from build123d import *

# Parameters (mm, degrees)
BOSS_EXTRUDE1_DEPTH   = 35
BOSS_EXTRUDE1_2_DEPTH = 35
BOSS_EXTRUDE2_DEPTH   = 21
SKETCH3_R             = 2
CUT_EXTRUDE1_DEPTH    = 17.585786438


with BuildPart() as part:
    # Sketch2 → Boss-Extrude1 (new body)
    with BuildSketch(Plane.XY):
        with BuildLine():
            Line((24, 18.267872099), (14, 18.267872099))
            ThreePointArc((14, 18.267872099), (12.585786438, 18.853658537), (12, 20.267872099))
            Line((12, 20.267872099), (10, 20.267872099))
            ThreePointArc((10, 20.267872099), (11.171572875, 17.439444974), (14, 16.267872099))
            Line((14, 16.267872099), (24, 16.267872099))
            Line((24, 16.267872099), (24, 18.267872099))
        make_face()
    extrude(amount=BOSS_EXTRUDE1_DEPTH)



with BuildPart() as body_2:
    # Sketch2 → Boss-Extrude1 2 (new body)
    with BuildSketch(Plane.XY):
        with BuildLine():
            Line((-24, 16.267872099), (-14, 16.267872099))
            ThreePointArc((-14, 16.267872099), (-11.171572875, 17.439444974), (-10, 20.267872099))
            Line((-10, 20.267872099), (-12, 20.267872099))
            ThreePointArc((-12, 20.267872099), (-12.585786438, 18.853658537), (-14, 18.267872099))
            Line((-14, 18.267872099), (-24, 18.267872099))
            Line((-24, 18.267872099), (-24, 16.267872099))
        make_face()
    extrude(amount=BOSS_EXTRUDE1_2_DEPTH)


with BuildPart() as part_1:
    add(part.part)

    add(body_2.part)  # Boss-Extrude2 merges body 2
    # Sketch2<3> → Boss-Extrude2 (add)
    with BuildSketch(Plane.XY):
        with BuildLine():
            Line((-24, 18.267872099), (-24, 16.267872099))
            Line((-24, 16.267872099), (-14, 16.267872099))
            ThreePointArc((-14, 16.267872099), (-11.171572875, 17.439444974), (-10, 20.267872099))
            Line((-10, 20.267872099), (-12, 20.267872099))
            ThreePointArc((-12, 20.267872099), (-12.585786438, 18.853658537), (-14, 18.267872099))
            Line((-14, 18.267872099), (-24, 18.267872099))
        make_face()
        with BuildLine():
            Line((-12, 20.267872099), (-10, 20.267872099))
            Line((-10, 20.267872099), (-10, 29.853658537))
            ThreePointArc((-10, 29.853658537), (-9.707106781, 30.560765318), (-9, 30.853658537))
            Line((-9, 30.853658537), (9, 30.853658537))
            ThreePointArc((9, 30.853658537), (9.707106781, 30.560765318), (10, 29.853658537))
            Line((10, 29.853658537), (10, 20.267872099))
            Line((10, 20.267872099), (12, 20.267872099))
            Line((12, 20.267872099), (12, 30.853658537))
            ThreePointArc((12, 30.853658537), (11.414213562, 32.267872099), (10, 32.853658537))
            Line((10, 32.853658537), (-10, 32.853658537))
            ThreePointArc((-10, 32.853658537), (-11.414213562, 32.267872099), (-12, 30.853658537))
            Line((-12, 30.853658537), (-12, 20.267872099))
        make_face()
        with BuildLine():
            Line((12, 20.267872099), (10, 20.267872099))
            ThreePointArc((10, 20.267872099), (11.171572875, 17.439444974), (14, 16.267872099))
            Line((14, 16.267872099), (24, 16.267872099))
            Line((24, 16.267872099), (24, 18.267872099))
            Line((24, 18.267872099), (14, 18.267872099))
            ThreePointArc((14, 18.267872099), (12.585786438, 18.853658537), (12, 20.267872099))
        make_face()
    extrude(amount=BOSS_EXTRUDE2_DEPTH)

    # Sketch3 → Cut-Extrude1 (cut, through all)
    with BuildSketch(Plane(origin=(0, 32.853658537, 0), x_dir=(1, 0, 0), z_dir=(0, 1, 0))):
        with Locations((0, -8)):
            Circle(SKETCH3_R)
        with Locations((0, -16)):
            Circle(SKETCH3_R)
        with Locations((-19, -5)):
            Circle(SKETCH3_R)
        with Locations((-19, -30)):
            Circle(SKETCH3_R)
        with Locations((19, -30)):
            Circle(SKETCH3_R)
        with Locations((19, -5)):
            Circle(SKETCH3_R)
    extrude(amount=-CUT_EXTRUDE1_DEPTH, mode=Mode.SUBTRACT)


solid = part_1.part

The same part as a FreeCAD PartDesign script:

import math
import FreeCAD as App
import Part
import Sketcher
Q = App.Units.Quantity

doc = App.newDocument("Part")
params = doc.addObject("Spreadsheet::Sheet", "Params")
for row, (alias, value) in enumerate([
    ("sketch1_radius", "2 mm"),
    ("sketch1_radius2", "4 mm"),
    ("sketch1_width", "10 mm"),
    ("pad1_length", "35 mm"),
    ("sketch2_radius", "4 mm"),
    ("sketch2_radius2", "2 mm"),
    ("sketch2_width", "10 mm"),
    ("pad2_length", "35 mm"),
    ("sketch3_radius", "4 mm"),
    ("sketch3_radius2", "1 mm"),
    ("sketch3_width", "10 mm"),
    ("sketch3_width2", "18 mm"),
    ("pad3_length", "21 mm"),
    ("sketch4_diameter", "4 mm"),
], start=1):
    params.set(f"A{row}", alias)
    params.set(f"B{row}", "=" + value)
    params.setAlias(f"B{row}", alias)

body = doc.addObject("PartDesign::Body", "Body")

sketch1 = body.newObject("Sketcher::SketchObject", "Sketch")
sketch1.AttachmentSupport = (doc.getObject("XY_Plane"), [""])
sketch1.MapMode = "FlatFace"
sketch1.addGeometry([
    Part.LineSegment(App.Vector(24, 18.3, 0), App.Vector(14, 18.3, 0)),
    Part.ArcOfCircle(Part.Circle(App.Vector(14, 20.3, 0), App.Vector(0, 0, 1), 2), math.radians(-180), math.radians(-90)),
    Part.LineSegment(App.Vector(12, 20.3, 0), App.Vector(10, 20.3, 0)),
    Part.ArcOfCircle(Part.Circle(App.Vector(14, 20.3, 0), App.Vector(0, 0, 1), 4), math.radians(180), math.radians(270)),
    Part.LineSegment(App.Vector(14, 16.3, 0), App.Vector(24, 16.3, 0)),
    Part.LineSegment(App.Vector(24, 16.3, 0), App.Vector(24, 18.3, 0)),
], False)
sketch1.addConstraint([
    Sketcher.Constraint("Tangent", 0, 2, 1, 2),
    Sketcher.Constraint("Coincident", 1, 1, 2, 1),
    Sketcher.Constraint("Coincident", 2, 2, 3, 1),
    Sketcher.Constraint("Tangent", 3, 2, 4, 1),
    Sketcher.Constraint("Coincident", 4, 2, 5, 1),
    Sketcher.Constraint("Coincident", 5, 2, 0, 1),
    Sketcher.Constraint("Horizontal", 0),
    Sketcher.Constraint("Horizontal", 2),
    Sketcher.Constraint("Horizontal", 4),
    Sketcher.Constraint("Vertical", 5),
    Sketcher.Constraint("Coincident", 3, 3, 1, 3),
    Sketcher.Constraint("Horizontal", 3, 3, 1, 1),
    Sketcher.Constraint("Radius", 1, Q("2 mm")),
    Sketcher.Constraint("Radius", 3, Q("4 mm")),
    Sketcher.Constraint("DistanceX", 0, 2, 0, 1, Q("10 mm")),
    Sketcher.Constraint("DistanceX", -1, 1, 1, 3, Q("14 mm")),
    Sketcher.Constraint("DistanceY", -1, 1, 1, 3, Q("20.267872 mm")),
])
sketch1.setExpression("Constraints[12]", "Params.sketch1_radius")
sketch1.setExpression("Constraints[13]", "Params.sketch1_radius2")
sketch1.setExpression("Constraints[14]", "Params.sketch1_width")
pad1 = body.newObject("PartDesign::Pad", "Pad")
pad1.Profile = sketch1
pad1.setExpression("Length", "Params.pad1_length")
body2 = doc.addObject("PartDesign::Body", "Body001")

sketch2 = body2.newObject("Sketcher::SketchObject", "Sketch001")
sketch2.AttachmentSupport = (doc.getObject("XY_Plane001"), [""])
sketch2.MapMode = "FlatFace"
sketch2.addGeometry([
    Part.LineSegment(App.Vector(-24, 16.3, 0), App.Vector(-14, 16.3, 0)),
    Part.ArcOfCircle(Part.Circle(App.Vector(-14, 20.3, 0), App.Vector(0, 0, 1), 4), math.radians(-90), math.radians(0)),
    Part.LineSegment(App.Vector(-10, 20.3, 0), App.Vector(-12, 20.3, 0)),
    Part.ArcOfCircle(Part.Circle(App.Vector(-14, 20.3, 0), App.Vector(0, 0, 1), 2), math.radians(-90), math.radians(0)),
    Part.LineSegment(App.Vector(-14, 18.3, 0), App.Vector(-24, 18.3, 0)),
    Part.LineSegment(App.Vector(-24, 18.3, 0), App.Vector(-24, 16.3, 0)),
], False)
sketch2.addConstraint([
    Sketcher.Constraint("Tangent", 0, 2, 1, 1),
    Sketcher.Constraint("Coincident", 1, 2, 2, 1),
    Sketcher.Constraint("Coincident", 2, 2, 3, 2),
    Sketcher.Constraint("Tangent", 3, 1, 4, 1),
    Sketcher.Constraint("Coincident", 4, 2, 5, 1),
    Sketcher.Constraint("Coincident", 5, 2, 0, 1),
    Sketcher.Constraint("Horizontal", 0),
    Sketcher.Constraint("Horizontal", 2),
    Sketcher.Constraint("Horizontal", 4),
    Sketcher.Constraint("Vertical", 5),
    Sketcher.Constraint("Coincident", 3, 3, 1, 3),
    Sketcher.Constraint("Horizontal", 3, 3, 1, 2),
    Sketcher.Constraint("Radius", 1, Q("4 mm")),
    Sketcher.Constraint("Radius", 3, Q("2 mm")),
    Sketcher.Constraint("DistanceX", 0, 1, 0, 2, Q("10 mm")),
    Sketcher.Constraint("DistanceX", 1, 3, -1, 1, Q("14 mm")),
    Sketcher.Constraint("DistanceY", -1, 1, 1, 3, Q("20.267872 mm")),
])
sketch2.setExpression("Constraints[12]", "Params.sketch2_radius")
sketch2.setExpression("Constraints[13]", "Params.sketch2_radius2")
sketch2.setExpression("Constraints[14]", "Params.sketch2_width")
pad2 = body2.newObject("PartDesign::Pad", "Pad001")
pad2.Profile = sketch2
pad2.setExpression("Length", "Params.pad2_length")
body.AllowCompound = True
doc.recompute()

boolean = body.newObject("PartDesign::Boolean", "Boolean")
boolean.Type = "Fuse"
boolean.addObjects([body2])

sketch3 = body.newObject("Sketcher::SketchObject", "Sketch002")
sketch3.AttachmentSupport = (doc.getObject("XY_Plane"), [""])
sketch3.MapMode = "FlatFace"
sketch3.addGeometry([
    Part.LineSegment(App.Vector(-24, 18.3, 0), App.Vector(-24, 16.3, 0)),
    Part.LineSegment(App.Vector(-24, 16.3, 0), App.Vector(-14, 16.3, 0)),
    Part.ArcOfCircle(Part.Circle(App.Vector(-14, 20.3, 0), App.Vector(0, 0, 1), 4), math.radians(-90), math.radians(0)),
    Part.LineSegment(App.Vector(-10, 20.3, 0), App.Vector(-10, 29.9, 0)),
    Part.ArcOfCircle(Part.Circle(App.Vector(-9, 29.9, 0), App.Vector(0, 0, 1), 1), math.radians(90), math.radians(180)),
    Part.LineSegment(App.Vector(-9, 30.9, 0), App.Vector(9, 30.9, 0)),
    Part.ArcOfCircle(Part.Circle(App.Vector(9, 29.9, 0), App.Vector(0, 0, 1), 1), math.radians(0), math.radians(90)),
    Part.LineSegment(App.Vector(10, 29.9, 0), App.Vector(10, 20.3, 0)),
    Part.ArcOfCircle(Part.Circle(App.Vector(14, 20.3, 0), App.Vector(0, 0, 1), 4), math.radians(180), math.radians(270)),
    Part.LineSegment(App.Vector(14, 16.3, 0), App.Vector(24, 16.3, 0)),
    Part.LineSegment(App.Vector(24, 16.3, 0), App.Vector(24, 18.3, 0)),
    Part.LineSegment(App.Vector(24, 18.3, 0), App.Vector(14, 18.3, 0)),
    Part.ArcOfCircle(Part.Circle(App.Vector(14, 20.3, 0), App.Vector(0, 0, 1), 2), math.radians(-180), math.radians(-90)),
    Part.LineSegment(App.Vector(12, 20.3, 0), App.Vector(12, 30.9, 0)),
    Part.ArcOfCircle(Part.Circle(App.Vector(10, 30.9, 0), App.Vector(0, 0, 1), 2), math.radians(0), math.radians(90)),
    Part.LineSegment(App.Vector(10, 32.9, 0), App.Vector(-10, 32.9, 0)),
    Part.ArcOfCircle(Part.Circle(App.Vector(-10, 30.9, 0), App.Vector(0, 0, 1), 2), math.radians(90), math.radians(180)),
    Part.LineSegment(App.Vector(-12, 30.9, 0), App.Vector(-12, 20.3, 0)),
    Part.ArcOfCircle(Part.Circle(App.Vector(-14, 20.3, 0), App.Vector(0, 0, 1), 2), math.radians(-90), math.radians(0)),
    Part.LineSegment(App.Vector(-14, 18.3, 0), App.Vector(-24, 18.3, 0)),
], False)
sketch3.addConstraint([
    Sketcher.Constraint("Coincident", 0, 2, 1, 1),
    Sketcher.Constraint("Tangent", 1, 2, 2, 1),
    Sketcher.Constraint("Tangent", 2, 2, 3, 1),
    Sketcher.Constraint("Tangent", 3, 2, 4, 2),
    Sketcher.Constraint("Tangent", 4, 1, 5, 1),
    Sketcher.Constraint("Tangent", 5, 2, 6, 2),
    Sketcher.Constraint("Tangent", 6, 1, 7, 1),
    Sketcher.Constraint("Tangent", 7, 2, 8, 1),
    Sketcher.Constraint("Tangent", 8, 2, 9, 1),
    Sketcher.Constraint("Coincident", 9, 2, 10, 1),
    Sketcher.Constraint("Coincident", 10, 2, 11, 1),
    Sketcher.Constraint("Tangent", 11, 2, 12, 2),
    Sketcher.Constraint("Tangent", 12, 1, 13, 1),
    Sketcher.Constraint("Tangent", 13, 2, 14, 1),
    Sketcher.Constraint("Tangent", 14, 2, 15, 1),
    Sketcher.Constraint("Tangent", 15, 2, 16, 1),
    Sketcher.Constraint("Tangent", 16, 2, 17, 1),
    Sketcher.Constraint("Tangent", 17, 2, 18, 2),
    Sketcher.Constraint("Tangent", 18, 1, 19, 1),
    Sketcher.Constraint("Coincident", 19, 2, 0, 1),
    Sketcher.Constraint("Vertical", 0),
    Sketcher.Constraint("Horizontal", 1),
    Sketcher.Constraint("Vertical", 3),
    Sketcher.Constraint("Horizontal", 5),
    Sketcher.Constraint("Vertical", 7),
    Sketcher.Constraint("Horizontal", 9),
    Sketcher.Constraint("Vertical", 10),
    Sketcher.Constraint("Horizontal", 11),
    Sketcher.Constraint("Vertical", 13),
    Sketcher.Constraint("Horizontal", 15),
    Sketcher.Constraint("Vertical", 17),
    Sketcher.Constraint("Horizontal", 19),
    Sketcher.Constraint("Coincident", 12, 3, 8, 3),
    Sketcher.Constraint("Coincident", 18, 3, 2, 3),
    Sketcher.Constraint("Equal", 4, 6),
    Sketcher.Constraint("Equal", 2, 8),
    Sketcher.Constraint("Equal", 12, 14),
    Sketcher.Constraint("Equal", 14, 16),
    Sketcher.Constraint("Equal", 16, 18),
    Sketcher.Constraint("Symmetric", 2, 3, 8, 3, -2),
    Sketcher.Constraint("Horizontal", 16, 3, 4, 1),
    Sketcher.Constraint("Vertical", 16, 3, 2, 2),
    Sketcher.Constraint("Equal", 1, 9),
    Sketcher.Constraint("Radius", 2, Q("4 mm")),
    Sketcher.Constraint("Radius", 4, Q("1 mm")),
    Sketcher.Constraint("DistanceX", 1, 1, 1, 2, Q("10 mm")),
    Sketcher.Constraint("DistanceX", 5, 1, 5, 2, Q("18 mm")),
    Sketcher.Constraint("DistanceY", 3, 1, 3, 2, Q("9.585786 mm")),
    Sketcher.Constraint("DistanceY", -1, 1, 4, 3, Q("29.853659 mm")),
])
sketch3.setExpression("Constraints[43]", "Params.sketch3_radius")
sketch3.setExpression("Constraints[44]", "Params.sketch3_radius2")
sketch3.setExpression("Constraints[45]", "Params.sketch3_width")
sketch3.setExpression("Constraints[46]", "Params.sketch3_width2")
pad3 = body.newObject("PartDesign::Pad", "Pad002")
pad3.Profile = sketch3
pad3.setExpression("Length", "Params.pad3_length")

sketch4 = body.newObject("Sketcher::SketchObject", "Sketch003")
sketch4.AttachmentSupport = (doc.getObject("XZ_Plane"), [""])
sketch4.MapMode = "FlatFace"
sketch4.AttachmentOffset = App.Placement(App.Vector(0, 0, -32.853659), App.Rotation())
sketch4.addGeometry([
    Part.Circle(App.Vector(0, 8, 0), App.Vector(0, 0, 1), 2),
    Part.Circle(App.Vector(0, 16, 0), App.Vector(0, 0, 1), 2),
    Part.Circle(App.Vector(-19, 5, 0), App.Vector(0, 0, 1), 2),
    Part.Circle(App.Vector(-19, 30, 0), App.Vector(0, 0, 1), 2),
    Part.Circle(App.Vector(19, 30, 0), App.Vector(0, 0, 1), 2),
    Part.Circle(App.Vector(19, 5, 0), App.Vector(0, 0, 1), 2),
], False)
sketch4.addConstraint([
    Sketcher.Constraint("Equal", 0, 1),
    Sketcher.Constraint("Equal", 1, 2),
    Sketcher.Constraint("Equal", 2, 3),
    Sketcher.Constraint("Equal", 3, 4),
    Sketcher.Constraint("Equal", 4, 5),
    Sketcher.Constraint("Symmetric", 3, 3, 4, 3, -2),
    Sketcher.Constraint("Symmetric", 2, 3, 5, 3, -2),
    Sketcher.Constraint("PointOnObject", 0, 3, -2),
    Sketcher.Constraint("PointOnObject", 1, 3, -2),
    Sketcher.Constraint("Vertical", 2, 3, 3, 3),
    Sketcher.Constraint("Diameter", 0, Q("4 mm")),
    Sketcher.Constraint("DistanceY", -1, 1, 0, 3, Q("8 mm")),
    Sketcher.Constraint("DistanceY", -1, 1, 1, 3, Q("16 mm")),
    Sketcher.Constraint("DistanceX", 2, 3, -1, 1, Q("19 mm")),
    Sketcher.Constraint("DistanceY", -1, 1, 2, 3, Q("5 mm")),
    Sketcher.Constraint("DistanceY", -1, 1, 3, 3, Q("30 mm")),
])
sketch4.setExpression("Constraints[10]", "Params.sketch4_diameter")
pocket1 = body.newObject("PartDesign::Pocket", "Pocket")
pocket1.Profile = sketch4
pocket1.Type = "ThroughAll"
pocket1.Reversed = True

doc.recompute()
